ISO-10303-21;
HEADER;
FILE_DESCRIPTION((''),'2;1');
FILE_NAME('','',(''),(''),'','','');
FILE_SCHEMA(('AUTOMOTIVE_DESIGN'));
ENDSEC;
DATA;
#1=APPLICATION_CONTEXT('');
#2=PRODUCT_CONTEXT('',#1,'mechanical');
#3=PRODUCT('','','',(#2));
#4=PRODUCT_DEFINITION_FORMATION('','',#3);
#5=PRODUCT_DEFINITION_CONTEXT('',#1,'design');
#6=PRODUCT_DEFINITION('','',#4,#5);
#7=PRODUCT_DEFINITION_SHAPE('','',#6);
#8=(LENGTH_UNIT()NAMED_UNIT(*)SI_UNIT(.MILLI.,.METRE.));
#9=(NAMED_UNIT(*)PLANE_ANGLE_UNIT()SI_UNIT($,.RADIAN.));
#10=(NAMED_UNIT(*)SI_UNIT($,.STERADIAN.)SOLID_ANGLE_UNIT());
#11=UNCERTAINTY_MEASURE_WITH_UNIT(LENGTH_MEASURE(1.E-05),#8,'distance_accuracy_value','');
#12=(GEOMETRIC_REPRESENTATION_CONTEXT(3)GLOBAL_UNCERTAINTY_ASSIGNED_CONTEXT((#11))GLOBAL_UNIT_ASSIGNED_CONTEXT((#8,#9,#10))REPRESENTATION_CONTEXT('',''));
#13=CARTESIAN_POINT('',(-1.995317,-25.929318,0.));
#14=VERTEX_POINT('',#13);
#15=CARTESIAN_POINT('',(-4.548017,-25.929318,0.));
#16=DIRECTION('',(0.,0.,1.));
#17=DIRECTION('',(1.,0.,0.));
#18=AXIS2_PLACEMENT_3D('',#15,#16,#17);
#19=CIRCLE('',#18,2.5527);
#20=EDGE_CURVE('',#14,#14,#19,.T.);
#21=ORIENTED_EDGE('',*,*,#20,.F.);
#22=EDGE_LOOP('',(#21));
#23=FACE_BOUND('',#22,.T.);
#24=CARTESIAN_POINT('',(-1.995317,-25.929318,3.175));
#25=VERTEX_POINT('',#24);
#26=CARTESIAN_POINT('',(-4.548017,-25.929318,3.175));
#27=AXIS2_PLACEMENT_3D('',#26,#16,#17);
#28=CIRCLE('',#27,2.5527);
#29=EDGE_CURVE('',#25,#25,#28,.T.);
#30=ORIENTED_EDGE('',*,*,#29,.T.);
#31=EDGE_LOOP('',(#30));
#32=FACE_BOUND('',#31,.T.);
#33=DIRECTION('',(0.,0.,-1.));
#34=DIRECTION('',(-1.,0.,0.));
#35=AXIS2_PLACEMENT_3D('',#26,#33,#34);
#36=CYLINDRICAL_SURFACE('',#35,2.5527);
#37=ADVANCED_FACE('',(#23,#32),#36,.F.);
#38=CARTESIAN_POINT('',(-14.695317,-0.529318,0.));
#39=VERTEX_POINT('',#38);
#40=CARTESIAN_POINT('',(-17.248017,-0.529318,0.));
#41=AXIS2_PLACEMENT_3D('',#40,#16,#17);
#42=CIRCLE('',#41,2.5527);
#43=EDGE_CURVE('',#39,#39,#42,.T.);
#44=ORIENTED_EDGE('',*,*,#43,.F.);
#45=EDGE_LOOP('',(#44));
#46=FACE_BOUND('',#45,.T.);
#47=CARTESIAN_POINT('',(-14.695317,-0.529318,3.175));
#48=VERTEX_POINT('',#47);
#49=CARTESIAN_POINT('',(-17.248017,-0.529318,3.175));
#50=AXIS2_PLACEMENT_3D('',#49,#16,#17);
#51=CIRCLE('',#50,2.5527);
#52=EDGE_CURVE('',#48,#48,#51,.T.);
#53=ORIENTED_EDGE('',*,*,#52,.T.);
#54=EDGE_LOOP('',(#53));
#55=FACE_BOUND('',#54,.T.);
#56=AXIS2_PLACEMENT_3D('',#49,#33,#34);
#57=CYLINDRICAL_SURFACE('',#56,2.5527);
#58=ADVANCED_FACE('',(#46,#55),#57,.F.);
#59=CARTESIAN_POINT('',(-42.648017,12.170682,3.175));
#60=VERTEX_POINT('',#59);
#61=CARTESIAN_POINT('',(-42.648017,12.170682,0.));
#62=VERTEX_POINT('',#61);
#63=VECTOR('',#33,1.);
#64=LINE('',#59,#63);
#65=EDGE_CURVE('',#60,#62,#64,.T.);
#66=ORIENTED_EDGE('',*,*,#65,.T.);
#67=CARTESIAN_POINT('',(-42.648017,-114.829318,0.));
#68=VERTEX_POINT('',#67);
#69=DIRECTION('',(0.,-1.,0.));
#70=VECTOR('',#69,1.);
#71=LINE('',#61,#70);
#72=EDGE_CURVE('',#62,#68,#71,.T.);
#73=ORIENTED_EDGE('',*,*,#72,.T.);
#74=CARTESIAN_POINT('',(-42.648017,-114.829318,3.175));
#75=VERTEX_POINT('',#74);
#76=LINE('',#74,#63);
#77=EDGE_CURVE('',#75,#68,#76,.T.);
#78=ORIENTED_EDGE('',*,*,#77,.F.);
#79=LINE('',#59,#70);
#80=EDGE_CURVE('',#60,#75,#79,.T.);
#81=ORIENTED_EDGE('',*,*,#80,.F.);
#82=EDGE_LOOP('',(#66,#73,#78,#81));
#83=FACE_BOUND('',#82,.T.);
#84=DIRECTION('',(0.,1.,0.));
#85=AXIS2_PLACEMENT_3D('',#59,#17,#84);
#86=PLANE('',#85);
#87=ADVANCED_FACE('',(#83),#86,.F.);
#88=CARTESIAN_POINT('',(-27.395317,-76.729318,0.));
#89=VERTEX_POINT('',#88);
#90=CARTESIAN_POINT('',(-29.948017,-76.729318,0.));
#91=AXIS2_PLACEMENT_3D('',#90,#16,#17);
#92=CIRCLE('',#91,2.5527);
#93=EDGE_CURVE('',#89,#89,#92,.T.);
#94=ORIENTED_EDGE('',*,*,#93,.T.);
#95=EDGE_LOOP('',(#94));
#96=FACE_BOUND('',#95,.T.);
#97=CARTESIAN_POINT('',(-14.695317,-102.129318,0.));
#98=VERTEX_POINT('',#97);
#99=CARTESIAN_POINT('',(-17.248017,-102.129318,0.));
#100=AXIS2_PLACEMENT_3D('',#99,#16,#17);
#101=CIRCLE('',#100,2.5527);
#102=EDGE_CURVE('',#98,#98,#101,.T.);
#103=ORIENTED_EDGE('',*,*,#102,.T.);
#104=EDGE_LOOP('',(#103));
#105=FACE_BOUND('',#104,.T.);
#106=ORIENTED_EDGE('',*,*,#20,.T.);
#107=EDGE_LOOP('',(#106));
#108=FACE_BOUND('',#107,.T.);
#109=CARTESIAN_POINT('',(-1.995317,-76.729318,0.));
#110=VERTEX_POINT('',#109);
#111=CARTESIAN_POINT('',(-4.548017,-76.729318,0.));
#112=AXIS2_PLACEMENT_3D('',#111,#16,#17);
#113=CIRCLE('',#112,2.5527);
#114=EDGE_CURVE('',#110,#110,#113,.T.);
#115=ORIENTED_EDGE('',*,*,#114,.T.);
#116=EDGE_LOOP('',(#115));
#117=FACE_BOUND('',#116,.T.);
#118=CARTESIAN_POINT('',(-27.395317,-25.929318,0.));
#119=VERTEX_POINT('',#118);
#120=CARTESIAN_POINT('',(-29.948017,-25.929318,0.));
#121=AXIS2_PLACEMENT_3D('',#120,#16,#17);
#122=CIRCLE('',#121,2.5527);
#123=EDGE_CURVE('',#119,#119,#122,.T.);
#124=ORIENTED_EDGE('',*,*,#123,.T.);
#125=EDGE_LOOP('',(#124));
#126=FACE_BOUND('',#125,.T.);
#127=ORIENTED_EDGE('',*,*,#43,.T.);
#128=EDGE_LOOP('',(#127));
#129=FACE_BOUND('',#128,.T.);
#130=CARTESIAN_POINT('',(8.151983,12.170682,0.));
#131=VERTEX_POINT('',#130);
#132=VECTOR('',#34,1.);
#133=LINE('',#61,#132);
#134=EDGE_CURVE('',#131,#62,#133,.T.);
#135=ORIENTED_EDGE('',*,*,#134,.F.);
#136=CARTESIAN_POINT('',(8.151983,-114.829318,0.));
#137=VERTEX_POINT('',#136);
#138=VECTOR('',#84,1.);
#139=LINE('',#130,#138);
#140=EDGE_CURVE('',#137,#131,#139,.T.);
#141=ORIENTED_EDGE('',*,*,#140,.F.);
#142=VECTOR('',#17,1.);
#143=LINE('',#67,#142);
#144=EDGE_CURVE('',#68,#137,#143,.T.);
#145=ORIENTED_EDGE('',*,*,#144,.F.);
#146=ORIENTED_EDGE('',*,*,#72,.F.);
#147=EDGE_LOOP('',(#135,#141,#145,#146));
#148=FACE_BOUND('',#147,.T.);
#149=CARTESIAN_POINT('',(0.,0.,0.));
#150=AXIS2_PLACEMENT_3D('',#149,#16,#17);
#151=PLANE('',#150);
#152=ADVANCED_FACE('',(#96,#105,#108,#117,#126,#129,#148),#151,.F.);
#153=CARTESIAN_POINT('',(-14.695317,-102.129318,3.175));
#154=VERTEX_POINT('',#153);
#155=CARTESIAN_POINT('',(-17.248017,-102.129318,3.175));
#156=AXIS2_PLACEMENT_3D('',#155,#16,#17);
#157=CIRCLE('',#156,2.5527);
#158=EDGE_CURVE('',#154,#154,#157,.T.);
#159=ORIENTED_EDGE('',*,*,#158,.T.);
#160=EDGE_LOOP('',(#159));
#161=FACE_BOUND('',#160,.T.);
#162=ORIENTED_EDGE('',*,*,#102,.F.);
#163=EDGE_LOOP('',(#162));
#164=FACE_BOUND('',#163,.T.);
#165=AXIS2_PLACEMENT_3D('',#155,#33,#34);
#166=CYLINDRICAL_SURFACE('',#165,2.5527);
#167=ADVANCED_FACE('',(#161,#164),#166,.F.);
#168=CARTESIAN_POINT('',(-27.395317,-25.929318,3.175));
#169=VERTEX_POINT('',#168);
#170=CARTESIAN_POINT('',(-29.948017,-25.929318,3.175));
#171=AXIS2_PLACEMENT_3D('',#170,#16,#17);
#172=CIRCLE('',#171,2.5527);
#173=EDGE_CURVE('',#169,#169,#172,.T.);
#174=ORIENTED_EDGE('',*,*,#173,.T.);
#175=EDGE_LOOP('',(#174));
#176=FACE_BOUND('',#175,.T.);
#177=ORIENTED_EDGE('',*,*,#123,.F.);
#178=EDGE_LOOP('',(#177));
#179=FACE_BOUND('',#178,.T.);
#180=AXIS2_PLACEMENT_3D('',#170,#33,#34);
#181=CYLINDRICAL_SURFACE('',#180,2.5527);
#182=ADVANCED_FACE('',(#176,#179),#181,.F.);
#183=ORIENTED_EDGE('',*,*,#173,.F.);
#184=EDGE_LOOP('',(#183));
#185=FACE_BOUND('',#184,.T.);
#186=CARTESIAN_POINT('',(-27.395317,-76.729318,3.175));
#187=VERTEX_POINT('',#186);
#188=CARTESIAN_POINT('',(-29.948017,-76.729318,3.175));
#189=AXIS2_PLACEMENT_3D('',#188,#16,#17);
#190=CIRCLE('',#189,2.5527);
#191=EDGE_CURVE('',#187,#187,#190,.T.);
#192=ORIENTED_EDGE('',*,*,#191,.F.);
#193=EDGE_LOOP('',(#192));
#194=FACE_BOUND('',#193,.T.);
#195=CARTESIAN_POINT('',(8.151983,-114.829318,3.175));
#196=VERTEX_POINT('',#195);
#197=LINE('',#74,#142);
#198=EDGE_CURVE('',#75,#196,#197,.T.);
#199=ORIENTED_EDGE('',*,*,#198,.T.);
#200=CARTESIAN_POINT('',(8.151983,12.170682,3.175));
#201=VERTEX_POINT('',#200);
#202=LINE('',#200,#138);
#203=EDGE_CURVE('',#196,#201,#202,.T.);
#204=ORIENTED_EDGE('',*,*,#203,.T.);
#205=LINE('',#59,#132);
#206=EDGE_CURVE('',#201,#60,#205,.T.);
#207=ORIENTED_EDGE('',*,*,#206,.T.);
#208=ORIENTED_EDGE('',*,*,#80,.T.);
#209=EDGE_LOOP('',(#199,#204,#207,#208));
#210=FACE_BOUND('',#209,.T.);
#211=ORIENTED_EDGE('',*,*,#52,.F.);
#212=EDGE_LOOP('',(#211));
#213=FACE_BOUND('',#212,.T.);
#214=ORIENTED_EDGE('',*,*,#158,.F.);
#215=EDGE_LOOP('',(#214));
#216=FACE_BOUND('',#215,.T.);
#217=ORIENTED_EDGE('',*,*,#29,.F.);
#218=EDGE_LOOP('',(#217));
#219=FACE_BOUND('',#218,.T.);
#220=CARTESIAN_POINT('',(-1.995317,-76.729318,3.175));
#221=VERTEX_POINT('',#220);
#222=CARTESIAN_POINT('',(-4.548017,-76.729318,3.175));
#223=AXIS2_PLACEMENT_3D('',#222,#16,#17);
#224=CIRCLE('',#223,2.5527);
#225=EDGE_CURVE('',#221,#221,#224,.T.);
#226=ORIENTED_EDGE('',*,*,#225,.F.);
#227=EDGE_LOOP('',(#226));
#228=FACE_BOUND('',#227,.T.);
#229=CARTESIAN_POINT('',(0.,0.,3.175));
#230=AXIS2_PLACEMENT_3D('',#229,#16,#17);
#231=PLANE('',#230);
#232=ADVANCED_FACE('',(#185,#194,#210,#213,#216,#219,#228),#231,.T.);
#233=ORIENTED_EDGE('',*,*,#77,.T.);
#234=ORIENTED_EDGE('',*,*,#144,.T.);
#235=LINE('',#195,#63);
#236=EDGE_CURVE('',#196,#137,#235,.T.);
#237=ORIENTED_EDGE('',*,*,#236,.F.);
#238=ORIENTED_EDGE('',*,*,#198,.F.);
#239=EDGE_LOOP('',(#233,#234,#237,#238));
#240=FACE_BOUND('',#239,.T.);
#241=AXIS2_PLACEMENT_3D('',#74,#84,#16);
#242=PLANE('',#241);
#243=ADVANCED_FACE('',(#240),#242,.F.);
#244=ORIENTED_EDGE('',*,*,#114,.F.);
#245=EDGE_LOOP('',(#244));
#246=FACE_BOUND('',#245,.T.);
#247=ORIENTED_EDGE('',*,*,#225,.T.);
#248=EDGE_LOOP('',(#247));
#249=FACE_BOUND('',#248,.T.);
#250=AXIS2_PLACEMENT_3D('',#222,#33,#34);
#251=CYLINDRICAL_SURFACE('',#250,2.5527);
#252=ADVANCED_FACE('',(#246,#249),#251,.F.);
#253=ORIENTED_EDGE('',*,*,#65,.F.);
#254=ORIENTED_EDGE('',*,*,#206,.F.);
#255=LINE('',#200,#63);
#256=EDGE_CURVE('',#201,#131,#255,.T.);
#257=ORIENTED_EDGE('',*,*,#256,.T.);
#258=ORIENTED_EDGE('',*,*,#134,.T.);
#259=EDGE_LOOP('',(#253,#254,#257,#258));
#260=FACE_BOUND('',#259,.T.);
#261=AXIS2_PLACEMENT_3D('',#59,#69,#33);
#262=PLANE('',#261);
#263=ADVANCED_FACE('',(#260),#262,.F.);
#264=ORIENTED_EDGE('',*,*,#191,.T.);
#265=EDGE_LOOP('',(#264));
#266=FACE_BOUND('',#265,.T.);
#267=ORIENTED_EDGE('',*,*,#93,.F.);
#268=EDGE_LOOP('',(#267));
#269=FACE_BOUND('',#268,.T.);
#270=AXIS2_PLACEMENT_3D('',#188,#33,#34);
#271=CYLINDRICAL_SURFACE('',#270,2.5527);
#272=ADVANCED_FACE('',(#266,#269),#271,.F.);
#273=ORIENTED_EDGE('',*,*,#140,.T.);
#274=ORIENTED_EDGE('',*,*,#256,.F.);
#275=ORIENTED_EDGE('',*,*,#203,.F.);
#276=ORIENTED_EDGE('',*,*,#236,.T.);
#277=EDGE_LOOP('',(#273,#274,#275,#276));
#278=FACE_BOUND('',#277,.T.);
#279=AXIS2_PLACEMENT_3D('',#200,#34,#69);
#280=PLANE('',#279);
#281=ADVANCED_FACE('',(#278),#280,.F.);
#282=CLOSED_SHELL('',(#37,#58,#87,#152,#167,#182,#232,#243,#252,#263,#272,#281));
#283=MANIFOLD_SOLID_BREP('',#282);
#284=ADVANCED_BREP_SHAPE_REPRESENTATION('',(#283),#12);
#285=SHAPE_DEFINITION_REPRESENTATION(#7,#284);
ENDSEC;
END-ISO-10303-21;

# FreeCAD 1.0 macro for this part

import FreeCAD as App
import Part
import Sketcher
Q = App.Units.Quantity


def add_polygon(sketch, points):
    """Adds a closed chain of lines whose ends are joined by coincident constraints."""
    first, n = sketch.GeometryCount, len(points)
    for a, b in zip(points, points[1:] + points[:1]):
        sketch.addGeometry(Part.LineSegment(App.Vector(*a, 0), App.Vector(*b, 0)), False)
    for i in range(n):
        sketch.addConstraint(Sketcher.Constraint("Coincident", first + i, 2, first + (i + 1) % n, 1))

doc = App.newDocument("Part")
params = doc.addObject("Spreadsheet::Sheet", "Params")
for row, (alias, value) in enumerate([
    ("sketch1_width", "2 in"),
    ("sketch1_height", "5 in"),
    ("sketch1_diameter", "0.201 in"),
    ("pad1_length", "0.125 in"),
], start=1):
    params.set(f"A{row}", alias)
    params.set(f"B{row}", "=" + value)
    params.setAlias(f"B{row}", alias)

body = doc.addObject("PartDesign::Body", "Body")

# Sketch on XY plane
sketch1 = body.newObject("Sketcher::SketchObject", "Sketch")
sketch1.AttachmentSupport = (doc.getObject("XY_Plane"), [""])
sketch1.MapMode = "FlatFace"
add_polygon(sketch1, [(-42.648017, 12.170682), (-42.648017, -114.829318), (8.151983, -114.829318), (8.151983, 12.170682)])  # lines 0-3
sketch1.addGeometry(Part.Circle(App.Vector(-17.248017, -102.129318, 0), App.Vector(0, 0, 1), 2.5527), False)  # 4
sketch1.addGeometry(Part.Circle(App.Vector(-29.948017, -76.729318, 0), App.Vector(0, 0, 1), 2.5527), False)  # 5
sketch1.addGeometry(Part.Circle(App.Vector(-4.548017, -76.729318, 0), App.Vector(0, 0, 1), 2.5527), False)  # 6
sketch1.addGeometry(Part.Circle(App.Vector(-29.948017, -25.929318, 0), App.Vector(0, 0, 1), 2.5527), False)  # 7
sketch1.addGeometry(Part.Circle(App.Vector(-17.248017, -0.529318, 0), App.Vector(0, 0, 1), 2.5527), False)  # 8
sketch1.addGeometry(Part.Circle(App.Vector(-4.548017, -25.929318, 0), App.Vector(0, 0, 1), 2.5527), False)  # 9
sketch1.addConstraint(Sketcher.Constraint("Vertical", 0))
sketch1.addConstraint(Sketcher.Constraint("Horizontal", 1))
sketch1.addConstraint(Sketcher.Constraint("Vertical", 2))
sketch1.addConstraint(Sketcher.Constraint("Horizontal", 3))
sketch1.addConstraint(Sketcher.Constraint("Equal", 4, 5))
sketch1.addConstraint(Sketcher.Constraint("Equal", 5, 6))
sketch1.addConstraint(Sketcher.Constraint("Equal", 6, 7))
sketch1.addConstraint(Sketcher.Constraint("Equal", 7, 8))
sketch1.addConstraint(Sketcher.Constraint("Equal", 8, 9))
sketch1.addConstraint(Sketcher.Constraint("Horizontal", 5, 3, 6, 3))
sketch1.addConstraint(Sketcher.Constraint("Horizontal", 7, 3, 9, 3))
sketch1.addConstraint(Sketcher.Constraint("Vertical", 5, 3, 7, 3))
sketch1.addConstraint(Sketcher.Constraint("Vertical", 4, 3, 8, 3))
sketch1.addConstraint(Sketcher.Constraint("Vertical", 6, 3, 9, 3))
sketch1.addConstraint(Sketcher.Constraint("DistanceX", 1, 1, 1, 2, Q("2 in")))
sketch1.addConstraint(Sketcher.Constraint("DistanceY", 0, 2, 0, 1, Q("5 in")))
sketch1.addConstraint(Sketcher.Constraint("Diameter", 4, Q("0.201 in")))
sketch1.addConstraint(Sketcher.Constraint("DistanceY", 4, 3, 5, 3, Q("1 in")))
sketch1.addConstraint(Sketcher.Constraint("DistanceX", 5, 3, 6, 3, Q("1 in")))
sketch1.addConstraint(Sketcher.Constraint("DistanceY", 5, 3, 7, 3, Q("2 in")))
sketch1.addConstraint(Sketcher.Constraint("DistanceY", 7, 3, 8, 3, Q("1 in")))
sketch1.addConstraint(Sketcher.Constraint("DistanceX", 0, 2, 4, 3, Q("1 in")))
sketch1.addConstraint(Sketcher.Constraint("DistanceX", 5, 3, 4, 3, Q("0.5 in")))
sketch1.addConstraint(Sketcher.Constraint("DistanceY", 0, 2, 4, 3, Q("0.5 in")))
sketch1.addConstraint(Sketcher.Constraint("DistanceX", 4, 3, -1, 1, Q("17.248017 mm")))
sketch1.addConstraint(Sketcher.Constraint("DistanceY", 4, 3, -1, 1, Q("102.129318 mm")))
sketch1.setExpression("Constraints[18]", "Params.sketch1_width")
sketch1.setExpression("Constraints[19]", "Params.sketch1_height")
sketch1.setExpression("Constraints[20]", "Params.sketch1_diameter")
pad1 = body.newObject("PartDesign::Pad", "Pad")
pad1.Profile = sketch1
pad1.setExpression("Length", "Params.pad1_length")

doc.recompute()
